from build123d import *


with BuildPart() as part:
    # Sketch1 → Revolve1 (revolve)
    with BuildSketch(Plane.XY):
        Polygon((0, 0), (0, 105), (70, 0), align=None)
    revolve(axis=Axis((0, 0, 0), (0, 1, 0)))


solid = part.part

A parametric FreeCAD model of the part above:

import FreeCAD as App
import Part
import Sketcher
Q = App.Units.Quantity

doc = App.newDocument("Part")
body = doc.addObject("PartDesign::Body", "Body")

sketch1 = doc.addObject("Sketcher::SketchObject", "Sketch")
body.addObject(sketch1)
sketch1.AttachmentSupport = (doc.XY_Plane, [""])
sketch1.MapMode = "FlatFace"
sketch1.addGeometry([
    Part.LineSegment(App.Vector(0, 105, 0), App.Vector(0, 0, 0)),
    Part.LineSegment(App.Vector(0, 0, 0), App.Vector(70, 0, 0)),
    Part.LineSegment(App.Vector(70, 0, 0), App.Vector(0, 105, 0)),
], False)
sketch1.addConstraint([
    Sketcher.Constraint("Coincident", 0, 2, 1, 1),
    Sketcher.Constraint("Coincident", 1, 2, 2, 1),
    Sketcher.Constraint("Coincident", 2, 2, 0, 1),
    Sketcher.Constraint("Vertical", 0),
    Sketcher.Constraint("Horizontal", 1),
    Sketcher.Constraint("Coincident", 0, 2, -1, 1),
    Sketcher.Constraint("DistanceX", 1, 1, 1, 2, Q("70 mm")),
    Sketcher.Constraint("DistanceY", 0, 2, 0, 1, Q("105 mm")),
])
revolution = doc.addObject("PartDesign::Revolution", "Revolution")
body.addObject(revolution)
revolution.Profile = sketch1
revolution.ReferenceAxis = (sketch1, ["V_Axis"])
revolution.Angle = 360

doc.recompute()
